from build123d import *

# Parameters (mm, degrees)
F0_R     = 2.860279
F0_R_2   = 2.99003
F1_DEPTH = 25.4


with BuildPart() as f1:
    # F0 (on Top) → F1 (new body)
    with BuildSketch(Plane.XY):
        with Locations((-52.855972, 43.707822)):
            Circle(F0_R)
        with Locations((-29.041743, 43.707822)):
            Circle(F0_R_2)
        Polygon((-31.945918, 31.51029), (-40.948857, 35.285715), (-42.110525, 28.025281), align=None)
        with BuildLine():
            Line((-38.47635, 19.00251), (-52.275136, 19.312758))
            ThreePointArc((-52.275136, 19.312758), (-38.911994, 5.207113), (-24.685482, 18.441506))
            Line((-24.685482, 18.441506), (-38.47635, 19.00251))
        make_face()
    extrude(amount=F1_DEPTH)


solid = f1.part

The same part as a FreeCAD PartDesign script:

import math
import FreeCAD as App
import Part
import Sketcher

doc = App.newDocument("Part")
params = doc.addObject("Spreadsheet::Sheet", "Params")
for row, (alias, value) in enumerate([
    ("pad1_length", "1 in"),
], start=1):
    params.set(f"A{row}", alias)
    params.set(f"B{row}", "=" + value)
    params.setAlias(f"B{row}", alias)

body = doc.addObject("PartDesign::Body", "Body")
body.AllowCompound = True

# Sketch on XY plane
sketch1 = body.newObject("Sketcher::SketchObject", "Sketch")
sketch1.AttachmentSupport = (doc.getObject("XY_Plane"), [""])
sketch1.MapMode = "FlatFace"
sketch1.addGeometry(Part.Circle(App.Vector(-52.855972, 43.707822, 0), App.Vector(0, 0, 1), 2.860279), False)
sketch1.addGeometry(Part.Circle(App.Vector(-29.041743, 43.707822, 0), App.Vector(0, 0, 1), 2.99003), False)
sketch1.addGeometry(Part.LineSegment(App.Vector(-31.945918, 31.51029, 0), App.Vector(-40.948857, 35.285715, 0)), False)
sketch1.addGeometry(Part.LineSegment(App.Vector(-40.948857, 35.285715, 0), App.Vector(-42.110525, 28.025281, 0)), False)
sketch1.addGeometry(Part.LineSegment(App.Vector(-42.110525, 28.025281, 0), App.Vector(-31.945918, 31.51029, 0)), False)
sketch1.addGeometry(Part.LineSegment(App.Vector(-38.47635, 19.00251, 0), App.Vector(-52.275136, 19.312758, 0)), False)
sketch1.addGeometry(Part.ArcOfCircle(Part.Circle(App.Vector(-38.47635, 19.00251, 0), App.Vector(0, 0, 1), 13.802274), math.radians(178.711994), math.radians(357.670528)), False)
sketch1.addGeometry(Part.LineSegment(App.Vector(-24.685482, 18.441506, 0), App.Vector(-38.47635, 19.00251, 0)), False)
sketch1.addConstraint(Sketcher.Constraint("Coincident", 2, 2, 3, 1))
sketch1.addConstraint(Sketcher.Constraint("Coincident", 3, 2, 4, 1))
sketch1.addConstraint(Sketcher.Constraint("Coincident", 4, 2, 2, 1))
sketch1.addConstraint(Sketcher.Constraint("Coincident", 5, 2, 6, 1))
sketch1.addConstraint(Sketcher.Constraint("Coincident", 6, 2, 7, 1))
sketch1.addConstraint(Sketcher.Constraint("Coincident", 7, 2, 5, 1))
sketch1.addConstraint(Sketcher.Constraint("Coincident", 7, 2, 6, 3))
sketch1.addConstraint(Sketcher.Constraint("Horizontal", 0, 3, 1, 3))
sketch1.addConstraint(Sketcher.Constraint("Diameter", 1, 5.98006))
sketch1.addConstraint(Sketcher.Constraint("Diameter", 0, 5.720558))
sketch1.addConstraint(Sketcher.Constraint("Radius", 6, 13.802274))
sketch1.addConstraint(Sketcher.Constraint("Distance", 3, 7.35278))
sketch1.addConstraint(Sketcher.Constraint("Distance", 4, 10.745442))
sketch1.addConstraint(Sketcher.Constraint("DistanceX", 6, 3, -1, 1, 38.47635))
sketch1.addConstraint(Sketcher.Constraint("DistanceY", -1, 1, 6, 3, 19.00251))
sketch1.addConstraint(Sketcher.Constraint("DistanceY", -1, 1, 3, 2, 28.025281))
sketch1.addConstraint(Sketcher.Constraint("DistanceY", -1, 1, 4, 2, 31.51029))
sketch1.addConstraint(Sketcher.Constraint("DistanceX", 0, 3, 1, 3, 23.814229))
sketch1.addConstraint(Sketcher.Constraint("DistanceX", 3, 2, 2, 2, 1.161668))
sketch1.addConstraint(Sketcher.Constraint("DistanceY", 3, 2, 0, 3, 15.682541))
sketch1.addConstraint(Sketcher.Constraint("DistanceX", 6, 3, 4, 2, 6.530432))
sketch1.addConstraint(Sketcher.Constraint("DistanceX", 5, 2, 3, 2, 10.164611))
sketch1.addConstraint(Sketcher.Constraint("DistanceY", 6, 2, 2, 2, 16.844209))
sketch1.addConstraint(Sketcher.Constraint("DistanceX", 1, 3, 6, 2, 4.356261))
pad1 = body.newObject("PartDesign::Pad", "Pad")
pad1.Profile = sketch1
pad1.setExpression("Length", "Params.pad1_length")

doc.recompute()
